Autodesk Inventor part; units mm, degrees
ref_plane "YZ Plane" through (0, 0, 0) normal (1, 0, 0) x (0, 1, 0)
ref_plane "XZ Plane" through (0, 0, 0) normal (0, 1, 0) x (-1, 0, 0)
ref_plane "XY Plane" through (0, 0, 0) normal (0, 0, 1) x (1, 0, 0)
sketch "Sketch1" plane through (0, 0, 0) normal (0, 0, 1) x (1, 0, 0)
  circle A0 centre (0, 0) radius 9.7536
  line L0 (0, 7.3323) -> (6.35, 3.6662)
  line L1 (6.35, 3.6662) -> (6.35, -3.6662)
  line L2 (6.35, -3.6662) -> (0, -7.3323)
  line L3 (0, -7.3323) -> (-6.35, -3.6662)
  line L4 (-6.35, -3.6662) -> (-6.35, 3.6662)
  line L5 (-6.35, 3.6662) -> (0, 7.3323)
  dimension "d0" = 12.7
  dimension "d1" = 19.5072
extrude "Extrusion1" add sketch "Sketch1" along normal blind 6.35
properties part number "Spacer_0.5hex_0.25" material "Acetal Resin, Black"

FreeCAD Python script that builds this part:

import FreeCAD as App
import Part
import Sketcher
Q = App.Units.Quantity


def add_polygon(sketch, points):
    """Adds a closed chain of lines whose ends are joined by coincident constraints."""
    first, n = sketch.GeometryCount, len(points)
    for a, b in zip(points, points[1:] + points[:1]):
        sketch.addGeometry(Part.LineSegment(App.Vector(*a, 0), App.Vector(*b, 0)), False)
    for i in range(n):
        sketch.addConstraint(Sketcher.Constraint("Coincident", first + i, 2, first + (i + 1) % n, 1))

doc = App.newDocument("Part")
body = doc.addObject("PartDesign::Body", "Body")

# Sketch on XY plane
sketch1 = body.newObject("Sketcher::SketchObject", "Sketch")
sketch1.AttachmentSupport = (doc.getObject("XY_Plane"), [""])
sketch1.MapMode = "FlatFace"
sketch1.addGeometry(Part.Circle(App.Vector(0, 0, 0), App.Vector(0, 0, 1), 10), False)  # 0
add_polygon(sketch1, [(-6, 4), (0, 7), (6, 4), (6, -4), (0, -7), (-6, -4)])  # lines 1-6
sketch1.addConstraint(Sketcher.Constraint("Vertical", 3))
sketch1.addConstraint(Sketcher.Constraint("Vertical", 6))
sketch1.addConstraint(Sketcher.Constraint("Coincident", 0, 3, -1, 1))
sketch1.addConstraint(Sketcher.Constraint("Symmetric", 1, 2, 4, 2, -1, 1))
sketch1.addConstraint(Sketcher.Constraint("Symmetric", 2, 2, 5, 2, -1, 1))
sketch1.addConstraint(Sketcher.Constraint("PointOnObject", 1, 2, -2))
sketch1.addConstraint(Sketcher.Constraint("Parallel", 1, 4))
sketch1.addConstraint(Sketcher.Constraint("Horizontal", 3, 2, 5, 2))
sketch1.addConstraint(Sketcher.Constraint("Diameter", 0, Q("0.768 in")))
sketch1.addConstraint(Sketcher.Constraint("DistanceX", 5, 2, 3, 2, Q("0.5 in")))
sketch1.addConstraint(Sketcher.Constraint("Angle", 1, Q("29.9995 deg")))
sketch1.addConstraint(Sketcher.Constraint("DistanceY", 3, 2, 1, 2, Q("0.433 in")))
pad1 = body.newObject("PartDesign::Pad", "Pad")
pad1.Profile = sketch1
pad1.Length = Q("0.25 in")

doc.recompute()
